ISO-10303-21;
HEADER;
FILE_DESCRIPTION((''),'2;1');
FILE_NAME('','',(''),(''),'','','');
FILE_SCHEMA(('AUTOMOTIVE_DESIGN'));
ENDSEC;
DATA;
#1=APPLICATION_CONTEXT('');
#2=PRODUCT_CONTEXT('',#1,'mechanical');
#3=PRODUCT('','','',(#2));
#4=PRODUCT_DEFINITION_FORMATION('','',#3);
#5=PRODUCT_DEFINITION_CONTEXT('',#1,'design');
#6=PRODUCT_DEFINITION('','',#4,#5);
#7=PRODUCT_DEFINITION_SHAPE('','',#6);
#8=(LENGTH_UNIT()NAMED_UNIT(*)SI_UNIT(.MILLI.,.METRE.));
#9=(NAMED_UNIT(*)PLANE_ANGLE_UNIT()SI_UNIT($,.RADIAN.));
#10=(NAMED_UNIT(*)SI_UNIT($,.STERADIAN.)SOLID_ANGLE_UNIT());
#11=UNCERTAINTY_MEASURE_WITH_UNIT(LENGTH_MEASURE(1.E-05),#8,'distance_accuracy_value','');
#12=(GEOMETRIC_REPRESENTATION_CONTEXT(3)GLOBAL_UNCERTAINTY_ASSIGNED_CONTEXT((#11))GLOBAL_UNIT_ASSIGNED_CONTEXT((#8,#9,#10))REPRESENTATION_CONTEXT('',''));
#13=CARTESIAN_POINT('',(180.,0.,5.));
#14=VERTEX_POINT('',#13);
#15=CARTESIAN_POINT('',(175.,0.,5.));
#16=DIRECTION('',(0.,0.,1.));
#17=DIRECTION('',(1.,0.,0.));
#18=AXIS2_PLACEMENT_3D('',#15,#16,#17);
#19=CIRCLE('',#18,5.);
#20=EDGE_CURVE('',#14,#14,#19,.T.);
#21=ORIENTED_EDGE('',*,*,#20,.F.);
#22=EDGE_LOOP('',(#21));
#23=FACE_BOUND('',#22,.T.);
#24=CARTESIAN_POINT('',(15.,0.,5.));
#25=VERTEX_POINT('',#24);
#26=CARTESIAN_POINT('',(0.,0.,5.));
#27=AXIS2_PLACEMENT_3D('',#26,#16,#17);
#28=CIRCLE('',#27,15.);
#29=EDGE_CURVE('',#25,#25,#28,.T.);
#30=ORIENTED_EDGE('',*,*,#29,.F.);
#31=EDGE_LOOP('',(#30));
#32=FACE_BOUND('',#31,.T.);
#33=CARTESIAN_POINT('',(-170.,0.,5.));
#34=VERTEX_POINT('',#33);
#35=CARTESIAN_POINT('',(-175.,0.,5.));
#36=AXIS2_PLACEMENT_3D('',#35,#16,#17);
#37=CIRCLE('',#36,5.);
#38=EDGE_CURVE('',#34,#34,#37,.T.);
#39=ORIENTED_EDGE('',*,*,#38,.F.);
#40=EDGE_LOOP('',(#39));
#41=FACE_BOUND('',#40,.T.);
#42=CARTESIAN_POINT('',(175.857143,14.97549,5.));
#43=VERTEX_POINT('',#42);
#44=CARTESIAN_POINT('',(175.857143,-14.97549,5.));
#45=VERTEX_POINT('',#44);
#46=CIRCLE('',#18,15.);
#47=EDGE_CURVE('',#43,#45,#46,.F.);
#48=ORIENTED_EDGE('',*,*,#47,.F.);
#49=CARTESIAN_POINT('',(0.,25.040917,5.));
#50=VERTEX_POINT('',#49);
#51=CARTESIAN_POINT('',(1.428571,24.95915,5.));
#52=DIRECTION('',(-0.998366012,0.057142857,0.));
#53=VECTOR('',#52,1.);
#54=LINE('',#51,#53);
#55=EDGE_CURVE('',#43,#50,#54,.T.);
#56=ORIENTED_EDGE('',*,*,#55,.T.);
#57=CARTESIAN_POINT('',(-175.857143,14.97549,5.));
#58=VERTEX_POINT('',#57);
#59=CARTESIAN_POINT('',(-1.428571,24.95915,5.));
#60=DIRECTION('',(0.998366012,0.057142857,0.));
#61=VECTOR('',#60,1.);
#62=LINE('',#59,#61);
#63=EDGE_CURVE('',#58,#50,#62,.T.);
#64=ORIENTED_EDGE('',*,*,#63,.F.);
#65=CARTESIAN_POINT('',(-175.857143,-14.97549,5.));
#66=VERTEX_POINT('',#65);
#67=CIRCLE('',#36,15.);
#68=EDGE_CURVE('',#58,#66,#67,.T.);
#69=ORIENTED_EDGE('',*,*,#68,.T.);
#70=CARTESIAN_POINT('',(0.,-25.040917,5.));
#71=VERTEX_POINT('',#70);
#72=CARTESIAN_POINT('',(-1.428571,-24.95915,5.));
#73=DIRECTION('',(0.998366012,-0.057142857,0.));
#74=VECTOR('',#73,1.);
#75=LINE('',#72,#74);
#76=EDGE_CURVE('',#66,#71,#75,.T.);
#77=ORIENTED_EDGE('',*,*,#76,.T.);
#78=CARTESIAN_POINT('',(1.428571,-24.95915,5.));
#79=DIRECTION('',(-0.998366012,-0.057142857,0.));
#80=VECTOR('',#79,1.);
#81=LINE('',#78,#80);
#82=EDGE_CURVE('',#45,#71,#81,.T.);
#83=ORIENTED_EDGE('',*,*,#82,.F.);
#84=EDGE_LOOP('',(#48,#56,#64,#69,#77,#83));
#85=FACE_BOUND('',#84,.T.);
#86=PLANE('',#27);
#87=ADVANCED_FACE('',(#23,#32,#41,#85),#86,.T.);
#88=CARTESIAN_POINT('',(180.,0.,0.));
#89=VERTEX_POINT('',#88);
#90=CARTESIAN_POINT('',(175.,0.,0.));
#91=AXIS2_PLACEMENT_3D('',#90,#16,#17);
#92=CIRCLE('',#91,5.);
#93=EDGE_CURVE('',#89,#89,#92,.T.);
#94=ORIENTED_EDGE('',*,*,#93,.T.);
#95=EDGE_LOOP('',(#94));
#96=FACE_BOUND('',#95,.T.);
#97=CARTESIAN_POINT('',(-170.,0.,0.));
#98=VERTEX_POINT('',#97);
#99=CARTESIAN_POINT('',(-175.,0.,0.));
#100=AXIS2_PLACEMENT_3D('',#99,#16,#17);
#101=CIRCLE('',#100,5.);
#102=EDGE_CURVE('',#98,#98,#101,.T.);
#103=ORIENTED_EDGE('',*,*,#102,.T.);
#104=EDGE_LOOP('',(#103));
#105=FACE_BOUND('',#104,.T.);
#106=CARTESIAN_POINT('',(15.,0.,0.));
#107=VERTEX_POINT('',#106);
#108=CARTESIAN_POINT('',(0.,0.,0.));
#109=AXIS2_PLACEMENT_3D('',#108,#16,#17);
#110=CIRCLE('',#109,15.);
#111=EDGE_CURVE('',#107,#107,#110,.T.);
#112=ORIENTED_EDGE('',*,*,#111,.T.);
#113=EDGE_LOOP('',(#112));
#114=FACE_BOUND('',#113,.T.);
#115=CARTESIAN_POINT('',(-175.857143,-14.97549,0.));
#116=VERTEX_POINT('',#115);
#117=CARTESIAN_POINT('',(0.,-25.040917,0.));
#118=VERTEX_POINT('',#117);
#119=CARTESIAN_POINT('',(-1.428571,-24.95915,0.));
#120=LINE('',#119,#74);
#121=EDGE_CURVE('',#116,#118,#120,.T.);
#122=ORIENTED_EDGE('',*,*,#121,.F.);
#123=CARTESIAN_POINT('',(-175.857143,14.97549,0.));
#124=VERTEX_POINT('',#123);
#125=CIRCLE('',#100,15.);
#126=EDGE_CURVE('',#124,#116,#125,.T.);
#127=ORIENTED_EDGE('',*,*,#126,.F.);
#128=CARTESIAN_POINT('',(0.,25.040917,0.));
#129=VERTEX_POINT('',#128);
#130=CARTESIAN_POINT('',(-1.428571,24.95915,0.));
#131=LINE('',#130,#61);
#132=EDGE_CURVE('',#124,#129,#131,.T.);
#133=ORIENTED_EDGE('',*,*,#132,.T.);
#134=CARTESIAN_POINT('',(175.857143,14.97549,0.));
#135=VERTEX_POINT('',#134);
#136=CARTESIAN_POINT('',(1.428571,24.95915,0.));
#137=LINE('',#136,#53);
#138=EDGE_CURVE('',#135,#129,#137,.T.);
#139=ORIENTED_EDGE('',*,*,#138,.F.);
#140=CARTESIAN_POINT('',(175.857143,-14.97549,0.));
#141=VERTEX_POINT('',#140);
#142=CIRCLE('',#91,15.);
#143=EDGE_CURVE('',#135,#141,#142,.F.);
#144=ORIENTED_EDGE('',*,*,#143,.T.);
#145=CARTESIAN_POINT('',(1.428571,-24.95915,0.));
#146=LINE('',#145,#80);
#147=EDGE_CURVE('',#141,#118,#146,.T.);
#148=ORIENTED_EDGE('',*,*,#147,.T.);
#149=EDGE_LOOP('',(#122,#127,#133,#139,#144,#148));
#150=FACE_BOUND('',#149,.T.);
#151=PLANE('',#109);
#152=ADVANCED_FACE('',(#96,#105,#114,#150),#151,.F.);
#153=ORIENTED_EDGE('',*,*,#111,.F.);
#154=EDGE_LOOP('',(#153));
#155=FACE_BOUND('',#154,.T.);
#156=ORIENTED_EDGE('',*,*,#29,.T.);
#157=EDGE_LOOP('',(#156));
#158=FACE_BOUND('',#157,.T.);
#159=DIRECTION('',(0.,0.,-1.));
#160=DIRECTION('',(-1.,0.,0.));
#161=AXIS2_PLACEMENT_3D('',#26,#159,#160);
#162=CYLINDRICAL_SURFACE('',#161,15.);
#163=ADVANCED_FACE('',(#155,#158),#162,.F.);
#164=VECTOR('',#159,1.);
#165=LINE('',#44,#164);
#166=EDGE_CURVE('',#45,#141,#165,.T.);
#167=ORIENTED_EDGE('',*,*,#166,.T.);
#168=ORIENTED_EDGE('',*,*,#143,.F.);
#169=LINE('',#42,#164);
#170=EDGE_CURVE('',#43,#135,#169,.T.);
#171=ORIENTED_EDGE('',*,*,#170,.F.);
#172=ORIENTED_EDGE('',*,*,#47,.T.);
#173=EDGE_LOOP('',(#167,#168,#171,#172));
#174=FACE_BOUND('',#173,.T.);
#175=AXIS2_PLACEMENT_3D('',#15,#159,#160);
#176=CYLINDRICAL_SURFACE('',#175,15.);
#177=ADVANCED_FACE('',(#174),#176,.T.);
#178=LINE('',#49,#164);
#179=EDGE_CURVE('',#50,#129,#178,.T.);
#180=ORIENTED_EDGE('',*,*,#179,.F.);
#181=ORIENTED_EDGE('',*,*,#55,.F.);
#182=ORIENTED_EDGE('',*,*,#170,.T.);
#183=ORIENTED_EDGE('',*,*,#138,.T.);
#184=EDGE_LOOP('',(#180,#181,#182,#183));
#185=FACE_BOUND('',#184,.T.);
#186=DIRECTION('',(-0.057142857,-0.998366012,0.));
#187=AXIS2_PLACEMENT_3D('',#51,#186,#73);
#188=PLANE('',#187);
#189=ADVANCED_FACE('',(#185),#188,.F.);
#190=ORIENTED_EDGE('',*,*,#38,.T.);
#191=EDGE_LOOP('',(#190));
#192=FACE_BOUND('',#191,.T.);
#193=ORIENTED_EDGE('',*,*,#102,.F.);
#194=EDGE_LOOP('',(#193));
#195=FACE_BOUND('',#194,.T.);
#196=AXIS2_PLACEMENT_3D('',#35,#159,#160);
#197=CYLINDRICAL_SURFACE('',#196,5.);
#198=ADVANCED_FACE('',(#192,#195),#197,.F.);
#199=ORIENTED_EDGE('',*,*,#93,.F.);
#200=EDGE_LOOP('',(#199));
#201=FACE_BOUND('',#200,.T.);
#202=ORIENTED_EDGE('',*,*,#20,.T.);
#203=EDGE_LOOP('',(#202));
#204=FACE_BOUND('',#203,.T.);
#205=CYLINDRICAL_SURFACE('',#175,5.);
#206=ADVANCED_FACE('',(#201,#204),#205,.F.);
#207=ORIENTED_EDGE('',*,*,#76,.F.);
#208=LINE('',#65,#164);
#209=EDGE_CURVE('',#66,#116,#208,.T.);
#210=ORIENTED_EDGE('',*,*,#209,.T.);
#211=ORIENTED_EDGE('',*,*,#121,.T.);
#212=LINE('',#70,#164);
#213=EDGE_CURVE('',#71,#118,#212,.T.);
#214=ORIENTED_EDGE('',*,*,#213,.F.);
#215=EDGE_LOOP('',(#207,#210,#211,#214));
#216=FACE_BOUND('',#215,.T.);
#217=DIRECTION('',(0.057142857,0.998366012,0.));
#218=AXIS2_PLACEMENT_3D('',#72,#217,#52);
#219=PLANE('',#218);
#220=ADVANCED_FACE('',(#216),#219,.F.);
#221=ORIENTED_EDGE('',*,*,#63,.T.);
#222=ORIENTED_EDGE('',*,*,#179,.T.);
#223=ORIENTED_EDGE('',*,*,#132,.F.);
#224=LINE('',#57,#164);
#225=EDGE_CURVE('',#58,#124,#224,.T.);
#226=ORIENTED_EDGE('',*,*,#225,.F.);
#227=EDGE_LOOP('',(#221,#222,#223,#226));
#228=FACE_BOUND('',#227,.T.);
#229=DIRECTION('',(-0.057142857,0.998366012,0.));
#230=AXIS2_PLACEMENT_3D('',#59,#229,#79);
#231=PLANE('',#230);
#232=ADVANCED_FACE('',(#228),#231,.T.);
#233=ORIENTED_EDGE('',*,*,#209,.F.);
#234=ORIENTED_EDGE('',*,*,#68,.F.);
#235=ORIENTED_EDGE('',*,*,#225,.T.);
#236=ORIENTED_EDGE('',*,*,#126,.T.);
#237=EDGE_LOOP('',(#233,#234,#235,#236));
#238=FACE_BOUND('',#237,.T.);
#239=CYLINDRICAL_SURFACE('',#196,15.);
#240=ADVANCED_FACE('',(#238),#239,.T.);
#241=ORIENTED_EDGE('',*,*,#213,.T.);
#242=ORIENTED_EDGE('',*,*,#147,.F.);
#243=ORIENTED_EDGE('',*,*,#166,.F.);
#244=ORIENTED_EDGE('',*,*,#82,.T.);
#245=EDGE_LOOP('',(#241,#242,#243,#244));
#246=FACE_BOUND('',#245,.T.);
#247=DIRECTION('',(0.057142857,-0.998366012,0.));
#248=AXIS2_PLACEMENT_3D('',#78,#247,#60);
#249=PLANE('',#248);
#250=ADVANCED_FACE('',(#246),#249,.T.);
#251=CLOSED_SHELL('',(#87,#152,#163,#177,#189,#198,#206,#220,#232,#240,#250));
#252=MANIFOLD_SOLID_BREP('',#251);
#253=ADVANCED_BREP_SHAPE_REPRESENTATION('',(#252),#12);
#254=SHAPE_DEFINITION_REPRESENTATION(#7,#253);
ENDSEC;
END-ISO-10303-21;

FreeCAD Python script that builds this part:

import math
import FreeCAD as App
import Part
import Sketcher

V = App.Vector

doc = App.newDocument("Part")
body = doc.addObject("PartDesign::Body", "Body")

# Sketch on XY plane
sketch1 = body.newObject("Sketcher::SketchObject", "Sketch")
sketch1.AttachmentSupport = (doc.getObject("XY_Plane"), [""])
sketch1.MapMode = "FlatFace"
sketch1.addGeometry([
    Part.LineSegment(V(0, 25, 0), V(-176, 15, 0)),  # 0
    Part.ArcOfCircle(Part.Circle(V(-175, 0, 0), V(0, 0, 1), 15), math.radians(93), math.radians(267)),  # 1
    Part.LineSegment(V(-176, -15, 0), V(0, -25, 0)),  # 2
    Part.LineSegment(V(0, -25, 0), V(176, -15, 0)),  # 3
    Part.ArcOfCircle(Part.Circle(V(175, 0, 0), V(0, 0, 1), 15), math.radians(-87), math.radians(87)),  # 4
    Part.LineSegment(V(176, 15, 0), V(0, 25, 0)),  # 5
    Part.Circle(V(-175, 0, 0), V(0, 0, 1), 5),  # 6
    Part.Circle(V(0, 0, 0), V(0, 0, 1), 15),  # 7
    Part.Circle(V(175, 0, 0), V(0, 0, 1), 5),  # 8
], False)
sketch1.addConstraint([
    Sketcher.Constraint("Tangent", 0, 2, 1, 1),
    Sketcher.Constraint("Tangent", 1, 2, 2, 1),
    Sketcher.Constraint("Coincident", 2, 2, 3, 1),
    Sketcher.Constraint("Tangent", 3, 2, 4, 1),
    Sketcher.Constraint("Tangent", 4, 2, 5, 1),
    Sketcher.Constraint("Coincident", 5, 2, 0, 1),
    Sketcher.Constraint("Coincident", 7, 3, -1, 1),
    Sketcher.Constraint("Coincident", 6, 3, 1, 3),
    Sketcher.Constraint("Coincident", 8, 3, 4, 3),
    Sketcher.Constraint("Equal", 1, 4),
    Sketcher.Constraint("Equal", 4, 7),
    Sketcher.Constraint("Equal", 6, 8),
    Sketcher.Constraint("Symmetric", 1, 3, 4, 3, -1, 1),
    Sketcher.Constraint("Symmetric", 2, 2, 5, 2, -1, 1),
    Sketcher.Constraint("Symmetric", 1, 2, 3, 2, -2),
    Sketcher.Constraint("Diameter", 6, 10.0),
    Sketcher.Constraint("Diameter", 7, 30.0),
    Sketcher.Constraint("DistanceX", 1, 3, -1, 1, 175.0),
    Sketcher.Constraint("Distance", 0, 176.144962),
])
pad1 = body.newObject("PartDesign::Pad", "Pad")
pad1.Profile = sketch1
pad1.Length = 5

doc.recompute()
